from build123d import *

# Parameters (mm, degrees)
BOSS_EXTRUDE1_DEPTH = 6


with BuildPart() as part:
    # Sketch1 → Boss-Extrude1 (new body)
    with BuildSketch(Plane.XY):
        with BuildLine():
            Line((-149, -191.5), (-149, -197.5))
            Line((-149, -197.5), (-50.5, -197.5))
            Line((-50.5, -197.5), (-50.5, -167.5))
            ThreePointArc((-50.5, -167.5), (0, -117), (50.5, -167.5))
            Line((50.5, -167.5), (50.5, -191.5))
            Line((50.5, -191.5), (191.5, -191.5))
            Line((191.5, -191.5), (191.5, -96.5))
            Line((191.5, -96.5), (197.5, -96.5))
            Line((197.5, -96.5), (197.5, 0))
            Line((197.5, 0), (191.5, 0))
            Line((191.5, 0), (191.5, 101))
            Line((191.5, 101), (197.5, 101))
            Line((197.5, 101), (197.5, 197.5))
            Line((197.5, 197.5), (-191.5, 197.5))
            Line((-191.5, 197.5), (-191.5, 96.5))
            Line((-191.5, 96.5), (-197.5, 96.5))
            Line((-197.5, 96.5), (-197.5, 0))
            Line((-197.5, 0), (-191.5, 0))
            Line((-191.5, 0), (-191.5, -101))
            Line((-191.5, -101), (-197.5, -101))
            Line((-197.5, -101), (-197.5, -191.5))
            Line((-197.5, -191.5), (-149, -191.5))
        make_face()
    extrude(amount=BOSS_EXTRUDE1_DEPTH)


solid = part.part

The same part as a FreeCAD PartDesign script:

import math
import FreeCAD as App
import Part
import Sketcher
from FreeCAD import Vector

doc = App.newDocument("Part")
body = doc.addObject("PartDesign::Body", "Body")

sketch1 = doc.addObject("Sketcher::SketchObject", "Sketch")
body.addObject(sketch1)
sketch1.AttachmentSupport = (doc.XY_Plane, [""])
sketch1.MapMode = "FlatFace"
sketch1.addGeometry(Part.LineSegment(Vector(-149, -192, 0), Vector(-149, -198, 0)), False)
sketch1.addGeometry(Part.LineSegment(Vector(-149, -198, 0), Vector(-50, -198, 0)), False)
sketch1.addGeometry(Part.LineSegment(Vector(-50, -198, 0), Vector(-50, -168, 0)), False)
sketch1.addGeometry(Part.ArcOfCircle(Part.Circle(Vector(0, -168, 0), Vector(0, 0, 1), 50), math.radians(0), math.radians(180)), False)
sketch1.addGeometry(Part.LineSegment(Vector(50, -168, 0), Vector(50, -192, 0)), False)
sketch1.addGeometry(Part.LineSegment(Vector(50, -192, 0), Vector(192, -192, 0)), False)
sketch1.addGeometry(Part.LineSegment(Vector(192, -192, 0), Vector(192, -96, 0)), False)
sketch1.addGeometry(Part.LineSegment(Vector(192, -96, 0), Vector(198, -96, 0)), False)
sketch1.addGeometry(Part.LineSegment(Vector(198, -96, 0), Vector(198, 0, 0)), False)
sketch1.addGeometry(Part.LineSegment(Vector(198, 0, 0), Vector(192, 0, 0)), False)
sketch1.addGeometry(Part.LineSegment(Vector(192, 0, 0), Vector(192, 101, 0)), False)
sketch1.addGeometry(Part.LineSegment(Vector(192, 101, 0), Vector(198, 101, 0)), False)
sketch1.addGeometry(Part.LineSegment(Vector(198, 101, 0), Vector(198, 198, 0)), False)
sketch1.addGeometry(Part.LineSegment(Vector(198, 198, 0), Vector(-192, 198, 0)), False)
sketch1.addGeometry(Part.LineSegment(Vector(-192, 198, 0), Vector(-192, 96, 0)), False)
sketch1.addGeometry(Part.LineSegment(Vector(-192, 96, 0), Vector(-198, 96, 0)), False)
sketch1.addGeometry(Part.LineSegment(Vector(-198, 96, 0), Vector(-198, 0, 0)), False)
sketch1.addGeometry(Part.LineSegment(Vector(-198, 0, 0), Vector(-192, 0, 0)), False)
sketch1.addGeometry(Part.LineSegment(Vector(-192, 0, 0), Vector(-192, -101, 0)), False)
sketch1.addGeometry(Part.LineSegment(Vector(-192, -101, 0), Vector(-198, -101, 0)), False)
sketch1.addGeometry(Part.LineSegment(Vector(-198, -101, 0), Vector(-198, -192, 0)), False)
sketch1.addGeometry(Part.LineSegment(Vector(-198, -192, 0), Vector(-149, -192, 0)), False)
sketch1.addConstraint(Sketcher.Constraint("Coincident", 0, 2, 1, 1))
sketch1.addConstraint(Sketcher.Constraint("Coincident", 1, 2, 2, 1))
sketch1.addConstraint(Sketcher.Constraint("Tangent", 2, 2, 3, 2))
sketch1.addConstraint(Sketcher.Constraint("Tangent", 3, 1, 4, 1))
sketch1.addConstraint(Sketcher.Constraint("Coincident", 4, 2, 5, 1))
sketch1.addConstraint(Sketcher.Constraint("Coincident", 5, 2, 6, 1))
sketch1.addConstraint(Sketcher.Constraint("Coincident", 6, 2, 7, 1))
sketch1.addConstraint(Sketcher.Constraint("Coincident", 7, 2, 8, 1))
sketch1.addConstraint(Sketcher.Constraint("Coincident", 8, 2, 9, 1))
sketch1.addConstraint(Sketcher.Constraint("Coincident", 9, 2, 10, 1))
sketch1.addConstraint(Sketcher.Constraint("Coincident", 10, 2, 11, 1))
sketch1.addConstraint(Sketcher.Constraint("Coincident", 11, 2, 12, 1))
sketch1.addConstraint(Sketcher.Constraint("Coincident", 12, 2, 13, 1))
sketch1.addConstraint(Sketcher.Constraint("Coincident", 13, 2, 14, 1))
sketch1.addConstraint(Sketcher.Constraint("Coincident", 14, 2, 15, 1))
sketch1.addConstraint(Sketcher.Constraint("Coincident", 15, 2, 16, 1))
sketch1.addConstraint(Sketcher.Constraint("Coincident", 16, 2, 17, 1))
sketch1.addConstraint(Sketcher.Constraint("Coincident", 17, 2, 18, 1))
sketch1.addConstraint(Sketcher.Constraint("Coincident", 18, 2, 19, 1))
sketch1.addConstraint(Sketcher.Constraint("Coincident", 19, 2, 20, 1))
sketch1.addConstraint(Sketcher.Constraint("Coincident", 20, 2, 21, 1))
sketch1.addConstraint(Sketcher.Constraint("Coincident", 21, 2, 0, 1))
sketch1.addConstraint(Sketcher.Constraint("Vertical", 0))
sketch1.addConstraint(Sketcher.Constraint("Horizontal", 1))
sketch1.addConstraint(Sketcher.Constraint("Vertical", 2))
sketch1.addConstraint(Sketcher.Constraint("Vertical", 4))
sketch1.addConstraint(Sketcher.Constraint("Horizontal", 5))
sketch1.addConstraint(Sketcher.Constraint("Vertical", 6))
sketch1.addConstraint(Sketcher.Constraint("Horizontal", 7))
sketch1.addConstraint(Sketcher.Constraint("Vertical", 8))
sketch1.addConstraint(Sketcher.Constraint("Horizontal", 9))
sketch1.addConstraint(Sketcher.Constraint("Vertical", 10))
sketch1.addConstraint(Sketcher.Constraint("Horizontal", 11))
sketch1.addConstraint(Sketcher.Constraint("Vertical", 12))
sketch1.addConstraint(Sketcher.Constraint("Horizontal", 13))
sketch1.addConstraint(Sketcher.Constraint("Vertical", 14))
sketch1.addConstraint(Sketcher.Constraint("Horizontal", 15))
sketch1.addConstraint(Sketcher.Constraint("Vertical", 16))
sketch1.addConstraint(Sketcher.Constraint("Horizontal", 17))
sketch1.addConstraint(Sketcher.Constraint("Vertical", 18))
sketch1.addConstraint(Sketcher.Constraint("Horizontal", 19))
sketch1.addConstraint(Sketcher.Constraint("Vertical", 20))
sketch1.addConstraint(Sketcher.Constraint("Horizontal", 21))
sketch1.addConstraint(Sketcher.Constraint("Symmetric", 6, 2, 14, 2, -1, 1))
sketch1.addConstraint(Sketcher.Constraint("Symmetric", 8, 2, 16, 2, -1, 1))
sketch1.addConstraint(Sketcher.Constraint("Symmetric", 10, 2, 18, 2, -1, 1))
sketch1.addConstraint(Sketcher.Constraint("PointOnObject", 3, 3, -2))
sketch1.addConstraint(Sketcher.Constraint("PointOnObject", 8, 2, -1))
sketch1.addConstraint(Sketcher.Constraint("Horizontal", 5, 2, 20, 2))
sketch1.addConstraint(Sketcher.Constraint("Vertical", 6, 2, 9, 2))
sketch1.addConstraint(Sketcher.Constraint("Vertical", 8, 2, 11, 2))
sketch1.addConstraint(Sketcher.Constraint("Vertical", 16, 2, 19, 2))
sketch1.addConstraint(Sketcher.Constraint("Equal", 19, 0))
sketch1.addConstraint(Sketcher.Constraint("Equal", 8, 12))
sketch1.addConstraint(Sketcher.Constraint("Radius", 3, 50.5))
sketch1.addConstraint(Sketcher.Constraint("DistanceX", 5, 1, 5, 2, 141.0))
sketch1.addConstraint(Sketcher.Constraint("DistanceX", 7, 1, 7, 2, 6.0))
sketch1.addConstraint(Sketcher.Constraint("DistanceY", 2, 1, 2, 2, 30.0))
sketch1.addConstraint(Sketcher.Constraint("DistanceY", 6, 1, 6, 2, 95.0))
sketch1.addConstraint(Sketcher.Constraint("DistanceY", 10, 1, 10, 2, 101.0))
sketch1.addConstraint(Sketcher.Constraint("DistanceX", 1, 1, 1, 2, 98.5))
sketch1.addConstraint(Sketcher.Constraint("DistanceY", 8, 1, 8, 2, 96.5))
pad1 = doc.addObject("PartDesign::Pad", "Pad")
body.addObject(pad1)
pad1.Profile = sketch1
pad1.Length = 6

doc.recompute()
